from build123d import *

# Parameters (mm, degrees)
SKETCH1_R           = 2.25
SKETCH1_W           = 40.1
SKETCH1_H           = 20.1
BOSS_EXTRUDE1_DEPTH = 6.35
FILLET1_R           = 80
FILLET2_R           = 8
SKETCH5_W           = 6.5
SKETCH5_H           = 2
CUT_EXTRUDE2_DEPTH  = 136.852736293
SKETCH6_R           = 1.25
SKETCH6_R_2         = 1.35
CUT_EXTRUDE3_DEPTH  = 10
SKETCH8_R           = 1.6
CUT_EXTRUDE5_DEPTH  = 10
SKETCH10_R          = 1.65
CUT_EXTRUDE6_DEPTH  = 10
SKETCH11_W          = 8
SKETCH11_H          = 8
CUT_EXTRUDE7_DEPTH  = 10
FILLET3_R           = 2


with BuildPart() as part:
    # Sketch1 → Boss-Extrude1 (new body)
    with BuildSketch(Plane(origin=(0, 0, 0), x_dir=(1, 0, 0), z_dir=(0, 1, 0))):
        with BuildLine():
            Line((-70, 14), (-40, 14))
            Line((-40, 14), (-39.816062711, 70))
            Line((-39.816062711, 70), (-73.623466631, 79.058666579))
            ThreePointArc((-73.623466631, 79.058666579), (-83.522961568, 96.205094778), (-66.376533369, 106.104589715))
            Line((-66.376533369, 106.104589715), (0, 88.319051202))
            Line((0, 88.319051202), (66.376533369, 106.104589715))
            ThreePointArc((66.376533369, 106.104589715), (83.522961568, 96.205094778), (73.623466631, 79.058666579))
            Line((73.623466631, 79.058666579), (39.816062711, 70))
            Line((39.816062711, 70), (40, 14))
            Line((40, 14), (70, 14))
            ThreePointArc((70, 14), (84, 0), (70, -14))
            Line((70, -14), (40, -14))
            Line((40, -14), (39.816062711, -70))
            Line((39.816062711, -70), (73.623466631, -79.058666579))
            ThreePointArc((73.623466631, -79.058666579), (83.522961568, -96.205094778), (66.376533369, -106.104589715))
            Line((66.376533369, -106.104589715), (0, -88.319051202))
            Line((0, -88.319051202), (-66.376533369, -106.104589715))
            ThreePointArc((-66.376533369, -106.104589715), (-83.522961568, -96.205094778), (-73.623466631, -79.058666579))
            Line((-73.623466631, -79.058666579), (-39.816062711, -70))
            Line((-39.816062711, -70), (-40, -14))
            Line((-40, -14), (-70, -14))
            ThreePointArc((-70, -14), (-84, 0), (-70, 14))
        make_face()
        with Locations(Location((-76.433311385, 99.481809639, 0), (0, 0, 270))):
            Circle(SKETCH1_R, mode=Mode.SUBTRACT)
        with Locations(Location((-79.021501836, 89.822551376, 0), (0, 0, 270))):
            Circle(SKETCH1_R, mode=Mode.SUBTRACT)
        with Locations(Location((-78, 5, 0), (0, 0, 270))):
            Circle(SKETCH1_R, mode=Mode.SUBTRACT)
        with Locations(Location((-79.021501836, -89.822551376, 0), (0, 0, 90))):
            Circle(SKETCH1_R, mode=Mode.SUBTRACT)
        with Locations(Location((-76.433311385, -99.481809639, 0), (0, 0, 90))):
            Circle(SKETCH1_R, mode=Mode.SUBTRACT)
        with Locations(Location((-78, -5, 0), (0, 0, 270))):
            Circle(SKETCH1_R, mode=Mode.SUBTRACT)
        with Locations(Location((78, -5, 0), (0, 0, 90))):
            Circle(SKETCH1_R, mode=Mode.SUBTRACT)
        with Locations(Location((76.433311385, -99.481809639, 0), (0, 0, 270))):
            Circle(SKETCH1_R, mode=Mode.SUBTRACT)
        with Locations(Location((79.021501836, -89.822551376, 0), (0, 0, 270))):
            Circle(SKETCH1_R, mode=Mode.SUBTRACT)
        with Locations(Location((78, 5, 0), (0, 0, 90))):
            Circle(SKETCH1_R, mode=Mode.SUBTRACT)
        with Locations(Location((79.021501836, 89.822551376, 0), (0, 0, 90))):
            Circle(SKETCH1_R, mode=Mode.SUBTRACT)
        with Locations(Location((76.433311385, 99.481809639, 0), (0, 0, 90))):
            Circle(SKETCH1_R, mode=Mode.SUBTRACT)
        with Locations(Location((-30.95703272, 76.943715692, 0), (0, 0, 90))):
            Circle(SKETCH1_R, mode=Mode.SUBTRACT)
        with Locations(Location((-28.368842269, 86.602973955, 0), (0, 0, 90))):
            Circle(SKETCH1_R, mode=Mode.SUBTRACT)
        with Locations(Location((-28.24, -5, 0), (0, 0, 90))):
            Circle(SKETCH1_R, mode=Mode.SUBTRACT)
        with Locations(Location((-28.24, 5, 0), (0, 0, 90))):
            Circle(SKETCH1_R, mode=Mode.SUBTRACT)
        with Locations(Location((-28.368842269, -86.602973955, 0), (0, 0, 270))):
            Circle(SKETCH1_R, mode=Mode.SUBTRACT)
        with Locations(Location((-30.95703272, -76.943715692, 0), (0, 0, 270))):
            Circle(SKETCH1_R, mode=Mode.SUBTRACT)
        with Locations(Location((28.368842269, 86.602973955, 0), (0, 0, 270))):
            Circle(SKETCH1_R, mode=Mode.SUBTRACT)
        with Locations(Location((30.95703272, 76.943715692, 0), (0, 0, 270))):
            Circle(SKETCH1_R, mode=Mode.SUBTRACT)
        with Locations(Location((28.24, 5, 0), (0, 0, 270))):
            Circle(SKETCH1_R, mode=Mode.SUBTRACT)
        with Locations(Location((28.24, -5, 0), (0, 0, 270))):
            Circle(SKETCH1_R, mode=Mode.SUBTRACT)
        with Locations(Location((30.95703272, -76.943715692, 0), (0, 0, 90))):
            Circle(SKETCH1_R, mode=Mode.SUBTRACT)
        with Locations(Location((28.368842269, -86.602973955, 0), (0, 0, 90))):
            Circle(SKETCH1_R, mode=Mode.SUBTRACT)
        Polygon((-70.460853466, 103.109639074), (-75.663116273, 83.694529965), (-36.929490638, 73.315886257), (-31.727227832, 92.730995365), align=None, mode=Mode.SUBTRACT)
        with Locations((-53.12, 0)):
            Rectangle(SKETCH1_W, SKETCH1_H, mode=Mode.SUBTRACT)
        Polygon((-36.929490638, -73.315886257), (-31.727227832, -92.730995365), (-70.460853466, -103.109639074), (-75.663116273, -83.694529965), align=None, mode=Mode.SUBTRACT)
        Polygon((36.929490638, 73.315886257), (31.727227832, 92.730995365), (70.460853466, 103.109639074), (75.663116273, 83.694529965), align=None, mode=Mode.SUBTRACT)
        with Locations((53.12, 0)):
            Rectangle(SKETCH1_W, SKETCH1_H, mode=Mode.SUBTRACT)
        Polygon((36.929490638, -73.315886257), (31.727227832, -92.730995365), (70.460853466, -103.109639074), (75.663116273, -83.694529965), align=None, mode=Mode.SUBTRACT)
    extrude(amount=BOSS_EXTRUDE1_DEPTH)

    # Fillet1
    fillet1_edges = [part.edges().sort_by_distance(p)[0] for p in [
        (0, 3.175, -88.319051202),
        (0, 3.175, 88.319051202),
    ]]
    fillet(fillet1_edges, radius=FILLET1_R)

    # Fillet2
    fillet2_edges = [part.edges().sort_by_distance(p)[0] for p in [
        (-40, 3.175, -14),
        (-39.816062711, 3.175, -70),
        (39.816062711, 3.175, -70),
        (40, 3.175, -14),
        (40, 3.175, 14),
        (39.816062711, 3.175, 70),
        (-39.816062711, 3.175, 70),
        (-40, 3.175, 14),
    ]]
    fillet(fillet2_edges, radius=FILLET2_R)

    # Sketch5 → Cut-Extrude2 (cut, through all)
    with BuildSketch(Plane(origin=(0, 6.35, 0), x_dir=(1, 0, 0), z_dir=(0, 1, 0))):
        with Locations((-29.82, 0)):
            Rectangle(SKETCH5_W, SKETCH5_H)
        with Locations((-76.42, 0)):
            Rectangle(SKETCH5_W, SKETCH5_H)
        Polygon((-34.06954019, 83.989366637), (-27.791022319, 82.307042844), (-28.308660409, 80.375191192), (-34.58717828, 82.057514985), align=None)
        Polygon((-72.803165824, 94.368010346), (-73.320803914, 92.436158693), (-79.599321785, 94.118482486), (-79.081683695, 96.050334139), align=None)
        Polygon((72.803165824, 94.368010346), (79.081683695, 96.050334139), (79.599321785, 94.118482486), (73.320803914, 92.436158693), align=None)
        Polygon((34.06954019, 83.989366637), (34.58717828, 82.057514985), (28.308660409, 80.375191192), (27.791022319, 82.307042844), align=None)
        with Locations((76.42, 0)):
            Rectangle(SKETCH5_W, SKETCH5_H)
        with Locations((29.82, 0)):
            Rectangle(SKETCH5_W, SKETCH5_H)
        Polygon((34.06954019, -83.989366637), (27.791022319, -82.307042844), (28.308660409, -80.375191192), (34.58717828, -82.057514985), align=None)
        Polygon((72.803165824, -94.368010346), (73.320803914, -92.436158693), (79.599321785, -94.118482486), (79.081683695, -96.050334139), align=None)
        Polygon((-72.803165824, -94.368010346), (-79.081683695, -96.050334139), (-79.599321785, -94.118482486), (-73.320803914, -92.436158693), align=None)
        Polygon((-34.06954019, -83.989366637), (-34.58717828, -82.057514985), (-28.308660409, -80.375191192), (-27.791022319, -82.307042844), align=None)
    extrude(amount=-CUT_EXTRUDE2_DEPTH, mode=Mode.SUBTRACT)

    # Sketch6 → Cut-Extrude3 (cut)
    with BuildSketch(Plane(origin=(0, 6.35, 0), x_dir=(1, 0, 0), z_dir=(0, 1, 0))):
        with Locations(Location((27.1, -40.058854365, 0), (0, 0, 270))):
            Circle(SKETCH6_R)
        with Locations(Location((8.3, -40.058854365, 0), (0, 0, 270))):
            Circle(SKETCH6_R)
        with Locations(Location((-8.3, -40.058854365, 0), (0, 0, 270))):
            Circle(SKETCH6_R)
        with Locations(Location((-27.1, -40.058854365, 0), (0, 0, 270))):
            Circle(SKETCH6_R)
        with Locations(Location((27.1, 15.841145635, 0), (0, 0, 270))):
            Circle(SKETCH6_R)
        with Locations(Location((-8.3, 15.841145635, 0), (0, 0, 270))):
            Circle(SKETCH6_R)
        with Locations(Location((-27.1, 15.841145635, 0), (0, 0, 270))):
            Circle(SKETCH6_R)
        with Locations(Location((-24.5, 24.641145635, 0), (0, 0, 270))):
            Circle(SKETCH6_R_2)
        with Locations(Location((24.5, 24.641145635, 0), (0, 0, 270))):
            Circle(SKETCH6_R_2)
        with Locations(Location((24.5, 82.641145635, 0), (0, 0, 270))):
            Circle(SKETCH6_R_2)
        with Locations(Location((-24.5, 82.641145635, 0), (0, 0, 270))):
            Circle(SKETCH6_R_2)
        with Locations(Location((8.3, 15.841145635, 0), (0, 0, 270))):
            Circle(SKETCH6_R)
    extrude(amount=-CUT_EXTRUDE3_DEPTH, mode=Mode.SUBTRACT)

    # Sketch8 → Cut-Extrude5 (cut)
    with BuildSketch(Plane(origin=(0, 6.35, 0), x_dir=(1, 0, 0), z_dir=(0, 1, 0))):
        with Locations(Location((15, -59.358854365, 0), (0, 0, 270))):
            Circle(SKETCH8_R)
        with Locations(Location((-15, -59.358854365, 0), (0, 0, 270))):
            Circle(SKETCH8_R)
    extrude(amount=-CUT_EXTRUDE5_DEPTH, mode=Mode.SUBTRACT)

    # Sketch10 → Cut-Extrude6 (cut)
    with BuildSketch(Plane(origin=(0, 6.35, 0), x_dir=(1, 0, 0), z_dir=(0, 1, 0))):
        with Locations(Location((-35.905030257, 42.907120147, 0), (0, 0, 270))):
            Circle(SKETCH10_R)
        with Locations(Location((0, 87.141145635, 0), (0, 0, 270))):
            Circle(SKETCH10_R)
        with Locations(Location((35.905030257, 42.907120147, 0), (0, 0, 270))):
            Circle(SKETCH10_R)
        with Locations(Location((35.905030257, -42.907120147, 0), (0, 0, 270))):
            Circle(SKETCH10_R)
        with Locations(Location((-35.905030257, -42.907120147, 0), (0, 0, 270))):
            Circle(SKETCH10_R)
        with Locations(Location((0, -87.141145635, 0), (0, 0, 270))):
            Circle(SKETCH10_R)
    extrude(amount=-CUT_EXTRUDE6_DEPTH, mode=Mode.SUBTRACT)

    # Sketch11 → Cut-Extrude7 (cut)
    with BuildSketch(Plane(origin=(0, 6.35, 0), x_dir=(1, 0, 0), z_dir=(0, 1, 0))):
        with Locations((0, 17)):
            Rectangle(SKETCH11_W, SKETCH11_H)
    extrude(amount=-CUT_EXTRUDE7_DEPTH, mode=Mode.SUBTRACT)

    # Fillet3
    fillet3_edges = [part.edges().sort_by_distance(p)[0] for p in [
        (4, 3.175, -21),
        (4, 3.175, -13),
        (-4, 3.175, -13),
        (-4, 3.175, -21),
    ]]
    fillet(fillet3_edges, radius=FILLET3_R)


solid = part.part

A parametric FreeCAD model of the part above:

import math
import FreeCAD as App
import Part
import Sketcher
Q = App.Units.Quantity


def edges_at(feature, points):
    """Names of the edges that pass closest to the given points."""
    edges = feature.Shape.Edges
    near = lambda p: min(range(len(edges)), key=lambda i: edges[i].distToShape(Part.Vertex(*p))[0])
    return sorted({f"Edge{near(p) + 1}" for p in points})

doc = App.newDocument("Part")
body = doc.addObject("PartDesign::Body", "Body")

# Sketch on XZ plane
sketch1 = body.newObject("Sketcher::SketchObject", "Sketch")
sketch1.AttachmentSupport = (doc.getObject("XZ_Plane"), [""])
sketch1.MapMode = "FlatFace"
sketch1.addGeometry([
    Part.LineSegment(App.Vector(-40, -14, 0), App.Vector(-70, -14, 0)),  # 0
    Part.ArcOfCircle(Part.Circle(App.Vector(-70, 0, 0), App.Vector(0, 0, 1), 14), math.radians(90), math.radians(270)),  # 1
    Part.LineSegment(App.Vector(-70, 14, 0), App.Vector(-40, 14, 0)),  # 2
    Part.LineSegment(App.Vector(-40, 14, 0), App.Vector(-39.8, 70, 0)),  # 3
    Part.LineSegment(App.Vector(-39.8, 70, 0), App.Vector(-73.6, 79.1, 0)),  # 4
    Part.ArcOfCircle(Part.Circle(App.Vector(-70, 92.6, 0), App.Vector(0, 0, 1), 14), math.radians(75), math.radians(255)),  # 5
    Part.LineSegment(App.Vector(-66.4, 106.1, 0), App.Vector(0, 88.3, 0)),  # 6
    Part.LineSegment(App.Vector(0, 88.3, 0), App.Vector(66.4, 106.1, 0)),  # 7
    Part.ArcOfCircle(Part.Circle(App.Vector(70, 92.6, 0), App.Vector(0, 0, 1), 14), math.radians(-75), math.radians(105)),  # 8
    Part.LineSegment(App.Vector(73.6, 79.1, 0), App.Vector(39.8, 70, 0)),  # 9
    Part.LineSegment(App.Vector(39.8, 70, 0), App.Vector(40, 14, 0)),  # 10
    Part.LineSegment(App.Vector(40, 14, 0), App.Vector(70, 14, 0)),  # 11
    Part.ArcOfCircle(Part.Circle(App.Vector(70, 0, 0), App.Vector(0, 0, 1), 14), math.radians(-90), math.radians(90)),  # 12
    Part.LineSegment(App.Vector(70, -14, 0), App.Vector(40, -14, 0)),  # 13
    Part.LineSegment(App.Vector(40, -14, 0), App.Vector(39.8, -70, 0)),  # 14
    Part.LineSegment(App.Vector(39.8, -70, 0), App.Vector(73.6, -79.1, 0)),  # 15
    Part.ArcOfCircle(Part.Circle(App.Vector(70, -92.6, 0), App.Vector(0, 0, 1), 14), math.radians(-105), math.radians(75)),  # 16
    Part.LineSegment(App.Vector(66.4, -106.1, 0), App.Vector(0, -88.3, 0)),  # 17
    Part.LineSegment(App.Vector(0, -88.3, 0), App.Vector(-66.4, -106.1, 0)),  # 18
    Part.ArcOfCircle(Part.Circle(App.Vector(-70, -92.6, 0), App.Vector(0, 0, 1), 14), math.radians(105), math.radians(285)),  # 19
    Part.LineSegment(App.Vector(-73.6, -79.1, 0), App.Vector(-39.8, -70, 0)),  # 20
    Part.LineSegment(App.Vector(-39.8, -70, 0), App.Vector(-40, -14, 0)),  # 21
    Part.Circle(App.Vector(76.4, 99.5, 0), App.Vector(0, 0, 1), 2.2),  # 22
    Part.Circle(App.Vector(79, 89.8, 0), App.Vector(0, 0, 1), 2.2),  # 23
    Part.LineSegment(App.Vector(36.9, 73.3, 0), App.Vector(75.7, 83.7, 0)),  # 24
    Part.LineSegment(App.Vector(75.7, 83.7, 0), App.Vector(70.5, 103.1, 0)),  # 25
    Part.LineSegment(App.Vector(70.5, 103.1, 0), App.Vector(31.7, 92.7, 0)),  # 26
    Part.LineSegment(App.Vector(31.7, 92.7, 0), App.Vector(36.9, 73.3, 0)),  # 27
    Part.Circle(App.Vector(28.4, 86.6, 0), App.Vector(0, 0, 1), 2.2),  # 28
    Part.Circle(App.Vector(31, 76.9, 0), App.Vector(0, 0, 1), 2.2),  # 29
    Part.Circle(App.Vector(78, 5, 0), App.Vector(0, 0, 1), 2.2),  # 30
    Part.Circle(App.Vector(28.2, 5, 0), App.Vector(0, 0, 1), 2.2),  # 31
    Part.Circle(App.Vector(-28.4, 86.6, 0), App.Vector(0, 0, 1), 2.2),  # 32
    Part.Circle(App.Vector(-31, 76.9, 0), App.Vector(0, 0, 1), 2.2),  # 33
    Part.LineSegment(App.Vector(-36.9, 73.3, 0), App.Vector(-31.7, 92.7, 0)),  # 34
    Part.LineSegment(App.Vector(-31.7, 92.7, 0), App.Vector(-70.5, 103.1, 0)),  # 35
    Part.LineSegment(App.Vector(-70.5, 103.1, 0), App.Vector(-75.7, 83.7, 0)),  # 36
    Part.LineSegment(App.Vector(-75.7, 83.7, 0), App.Vector(-36.9, 73.3, 0)),  # 37
    Part.Circle(App.Vector(-76.4, 99.5, 0), App.Vector(0, 0, 1), 2.2),  # 38
    Part.Circle(App.Vector(-79, 89.8, 0), App.Vector(0, 0, 1), 2.2),  # 39
    Part.Circle(App.Vector(-28.2, 5, 0), App.Vector(0, 0, 1), 2.2),  # 40
    Part.Circle(App.Vector(-78, 5, 0), App.Vector(0, 0, 1), 2.2),  # 41
    Part.Circle(App.Vector(78, -5, 0), App.Vector(0, 0, 1), 2.2),  # 42
    Part.LineSegment(App.Vector(33.1, 10.1, 0), App.Vector(33.1, -10.1, 0)),  # 43
    Part.LineSegment(App.Vector(33.1, -10.1, 0), App.Vector(73.2, -10.1, 0)),  # 44
    Part.LineSegment(App.Vector(73.2, -10.1, 0), App.Vector(73.2, 10.1, 0)),  # 45
    Part.LineSegment(App.Vector(73.2, 10.1, 0), App.Vector(33.1, 10.1, 0)),  # 46
    Part.Circle(App.Vector(28.2, -5, 0), App.Vector(0, 0, 1), 2.2),  # 47
    Part.Circle(App.Vector(79, -89.8, 0), App.Vector(0, 0, 1), 2.2),  # 48
    Part.Circle(App.Vector(76.4, -99.5, 0), App.Vector(0, 0, 1), 2.2),  # 49
    Part.LineSegment(App.Vector(36.9, -73.3, 0), App.Vector(31.7, -92.7, 0)),  # 50
    Part.LineSegment(App.Vector(31.7, -92.7, 0), App.Vector(70.5, -103.1, 0)),  # 51
    Part.LineSegment(App.Vector(70.5, -103.1, 0), App.Vector(75.7, -83.7, 0)),  # 52
    Part.LineSegment(App.Vector(75.7, -83.7, 0), App.Vector(36.9, -73.3, 0)),  # 53
    Part.Circle(App.Vector(31, -76.9, 0), App.Vector(0, 0, 1), 2.2),  # 54
    Part.Circle(App.Vector(28.4, -86.6, 0), App.Vector(0, 0, 1), 2.2),  # 55
    Part.Circle(App.Vector(-28.2, -5, 0), App.Vector(0, 0, 1), 2.2),  # 56
    Part.LineSegment(App.Vector(-73.2, 10.1, 0), App.Vector(-73.2, -10.1, 0)),  # 57
    Part.LineSegment(App.Vector(-73.2, -10.1, 0), App.Vector(-33.1, -10.1, 0)),  # 58
    Part.LineSegment(App.Vector(-33.1, -10.1, 0), App.Vector(-33.1, 10.1, 0)),  # 59
    Part.LineSegment(App.Vector(-33.1, 10.1, 0), App.Vector(-73.2, 10.1, 0)),  # 60
    Part.Circle(App.Vector(-78, -5, 0), App.Vector(0, 0, 1), 2.2),  # 61
    Part.Circle(App.Vector(-31, -76.9, 0), App.Vector(0, 0, 1), 2.2),  # 62
    Part.Circle(App.Vector(-28.4, -86.6, 0), App.Vector(0, 0, 1), 2.2),  # 63
    Part.LineSegment(App.Vector(-70.5, -103.1, 0), App.Vector(-31.7, -92.7, 0)),  # 64
    Part.LineSegment(App.Vector(-31.7, -92.7, 0), App.Vector(-36.9, -73.3, 0)),  # 65
    Part.LineSegment(App.Vector(-36.9, -73.3, 0), App.Vector(-75.7, -83.7, 0)),  # 66
    Part.LineSegment(App.Vector(-75.7, -83.7, 0), App.Vector(-70.5, -103.1, 0)),  # 67
    Part.Circle(App.Vector(-79, -89.8, 0), App.Vector(0, 0, 1), 2.2),  # 68
    Part.Circle(App.Vector(-76.4, -99.5, 0), App.Vector(0, 0, 1), 2.2),  # 69
], False)
sketch1.addConstraint([
    Sketcher.Constraint("Tangent", 0, 2, 1, 2),
    Sketcher.Constraint("Tangent", 1, 1, 2, 1),
    Sketcher.Constraint("Coincident", 2, 2, 3, 1),
    Sketcher.Constraint("Coincident", 3, 2, 4, 1),
    Sketcher.Constraint("Tangent", 4, 2, 5, 2),
    Sketcher.Constraint("Tangent", 5, 1, 6, 1),
    Sketcher.Constraint("Coincident", 6, 2, 7, 1),
    Sketcher.Constraint("Tangent", 7, 2, 8, 2),
    Sketcher.Constraint("Tangent", 8, 1, 9, 1),
    Sketcher.Constraint("Coincident", 9, 2, 10, 1),
    Sketcher.Constraint("Coincident", 10, 2, 11, 1),
    Sketcher.Constraint("Tangent", 11, 2, 12, 2),
    Sketcher.Constraint("Tangent", 12, 1, 13, 1),
    Sketcher.Constraint("Coincident", 13, 2, 14, 1),
    Sketcher.Constraint("Coincident", 14, 2, 15, 1),
    Sketcher.Constraint("Tangent", 15, 2, 16, 2),
    Sketcher.Constraint("Tangent", 16, 1, 17, 1),
    Sketcher.Constraint("Coincident", 17, 2, 18, 1),
    Sketcher.Constraint("Tangent", 18, 2, 19, 2),
    Sketcher.Constraint("Tangent", 19, 1, 20, 1),
    Sketcher.Constraint("Coincident", 20, 2, 21, 1),
    Sketcher.Constraint("Coincident", 21, 2, 0, 1),
    Sketcher.Constraint("Coincident", 24, 2, 25, 1),
    Sketcher.Constraint("Coincident", 25, 2, 26, 1),
    Sketcher.Constraint("Coincident", 26, 2, 27, 1),
    Sketcher.Constraint("Coincident", 27, 2, 24, 1),
    Sketcher.Constraint("Coincident", 34, 2, 35, 1),
    Sketcher.Constraint("Coincident", 35, 2, 36, 1),
    Sketcher.Constraint("Coincident", 36, 2, 37, 1),
    Sketcher.Constraint("Coincident", 37, 2, 34, 1),
    Sketcher.Constraint("Coincident", 43, 2, 44, 1),
    Sketcher.Constraint("Coincident", 44, 2, 45, 1),
    Sketcher.Constraint("Coincident", 45, 2, 46, 1),
    Sketcher.Constraint("Coincident", 46, 2, 43, 1),
    Sketcher.Constraint("Coincident", 50, 2, 51, 1),
    Sketcher.Constraint("Coincident", 51, 2, 52, 1),
    Sketcher.Constraint("Coincident", 52, 2, 53, 1),
    Sketcher.Constraint("Coincident", 53, 2, 50, 1),
    Sketcher.Constraint("Coincident", 57, 2, 58, 1),
    Sketcher.Constraint("Coincident", 58, 2, 59, 1),
    Sketcher.Constraint("Coincident", 59, 2, 60, 1),
    Sketcher.Constraint("Coincident", 60, 2, 57, 1),
    Sketcher.Constraint("Coincident", 64, 2, 65, 1),
    Sketcher.Constraint("Coincident", 65, 2, 66, 1),
    Sketcher.Constraint("Coincident", 66, 2, 67, 1),
    Sketcher.Constraint("Coincident", 67, 2, 64, 1),
    Sketcher.Constraint("Horizontal", 0),
    Sketcher.Constraint("Horizontal", 2),
    Sketcher.Constraint("Horizontal", 11),
    Sketcher.Constraint("Horizontal", 13),
    Sketcher.Constraint("Vertical", 43),
    Sketcher.Constraint("Horizontal", 44),
    Sketcher.Constraint("Vertical", 45),
    Sketcher.Constraint("Horizontal", 46),
    Sketcher.Constraint("Vertical", 57),
    Sketcher.Constraint("Horizontal", 58),
    Sketcher.Constraint("Vertical", 59),
    Sketcher.Constraint("Horizontal", 60),
    Sketcher.Constraint("Equal", 1, 5),
    Sketcher.Constraint("Equal", 5, 8),
    Sketcher.Constraint("Equal", 8, 12),
    Sketcher.Constraint("Equal", 12, 16),
    Sketcher.Constraint("Equal", 16, 19),
    Sketcher.Constraint("Equal", 22, 23),
    Sketcher.Constraint("Equal", 23, 28),
    Sketcher.Constraint("Equal", 28, 29),
    Sketcher.Constraint("Equal", 29, 30),
    Sketcher.Constraint("Equal", 30, 31),
    Sketcher.Constraint("Equal", 31, 32),
    Sketcher.Constraint("Equal", 32, 33),
    Sketcher.Constraint("Equal", 33, 38),
    Sketcher.Constraint("Equal", 38, 39),
    Sketcher.Constraint("Equal", 39, 40),
    Sketcher.Constraint("Equal", 40, 41),
    Sketcher.Constraint("Equal", 41, 42),
    Sketcher.Constraint("Equal", 42, 47),
    Sketcher.Constraint("Equal", 47, 48),
    Sketcher.Constraint("Equal", 48, 49),
    Sketcher.Constraint("Equal", 49, 54),
    Sketcher.Constraint("Equal", 54, 55),
    Sketcher.Constraint("Equal", 55, 56),
    Sketcher.Constraint("Equal", 56, 61),
    Sketcher.Constraint("Equal", 61, 62),
    Sketcher.Constraint("Equal", 62, 63),
    Sketcher.Constraint("Equal", 63, 68),
    Sketcher.Constraint("Equal", 68, 69),
    Sketcher.Constraint("Symmetric", 1, 3, 12, 3, -1, 1),
    Sketcher.Constraint("Symmetric", 5, 3, 16, 3, -1, 1),
    Sketcher.Constraint("Symmetric", 8, 3, 19, 3, -1, 1),
    Sketcher.Constraint("Symmetric", 41, 3, 42, 3, -1, 1),
    Sketcher.Constraint("Symmetric", 40, 3, 47, 3, -1, 1),
    Sketcher.Constraint("Symmetric", 39, 3, 48, 3, -1, 1),
    Sketcher.Constraint("Symmetric", 38, 3, 49, 3, -1, 1),
    Sketcher.Constraint("Symmetric", 33, 3, 54, 3, -1, 1),
    Sketcher.Constraint("Symmetric", 32, 3, 55, 3, -1, 1),
    Sketcher.Constraint("Symmetric", 31, 3, 56, 3, -1, 1),
    Sketcher.Constraint("Symmetric", 30, 3, 61, 3, -1, 1),
    Sketcher.Constraint("Symmetric", 29, 3, 62, 3, -1, 1),
    Sketcher.Constraint("Symmetric", 28, 3, 63, 3, -1, 1),
    Sketcher.Constraint("Symmetric", 23, 3, 68, 3, -1, 1),
    Sketcher.Constraint("Symmetric", 22, 3, 69, 3, -1, 1),
    Sketcher.Constraint("Symmetric", 3, 2, 14, 2, -1, 1),
    Sketcher.Constraint("Symmetric", 6, 2, 17, 2, -1, 1),
    Sketcher.Constraint("Symmetric", 9, 2, 20, 2, -1, 1),
    Sketcher.Constraint("Symmetric", 34, 2, 50, 2, -1, 1),
    Sketcher.Constraint("Symmetric", 35, 2, 51, 2, -1, 1),
    Sketcher.Constraint("Symmetric", 36, 2, 52, 2, -1, 1),
    Sketcher.Constraint("Symmetric", 37, 2, 53, 2, -1, 1),
    Sketcher.Constraint("Symmetric", 45, 2, 57, 2, -1, 1),
    Sketcher.Constraint("Symmetric", 43, 2, 59, 2, -1, 1),
    Sketcher.Constraint("Symmetric", 26, 2, 64, 2, -1, 1),
    Sketcher.Constraint("Symmetric", 27, 2, 65, 2, -1, 1),
    Sketcher.Constraint("Symmetric", 24, 2, 66, 2, -1, 1),
    Sketcher.Constraint("Symmetric", 25, 2, 67, 2, -1, 1),
    Sketcher.Constraint("Symmetric", 5, 3, 8, 3, -2),
    Sketcher.Constraint("Symmetric", 28, 3, 32, 3, -2),
    Sketcher.Constraint("Symmetric", 29, 3, 33, 3, -2),
    Sketcher.Constraint("Symmetric", 22, 3, 38, 3, -2),
    Sketcher.Constraint("Symmetric", 23, 3, 39, 3, -2),
    Sketcher.Constraint("Symmetric", 31, 3, 40, 3, -2),
    Sketcher.Constraint("Symmetric", 30, 3, 41, 3, -2),
    Sketcher.Constraint("Symmetric", 3, 2, 9, 2, -2),
    Sketcher.Constraint("Symmetric", 2, 2, 10, 2, -2),
    Sketcher.Constraint("Symmetric", 26, 2, 34, 2, -2),
    Sketcher.Constraint("Symmetric", 25, 2, 35, 2, -2),
    Sketcher.Constraint("Symmetric", 24, 2, 36, 2, -2),
    Sketcher.Constraint("Symmetric", 27, 2, 37, 2, -2),
    Sketcher.Constraint("PointOnObject", 6, 2, -2),
    Sketcher.Constraint("Parallel", 4, 6),
    Sketcher.Constraint("Parallel", 3, 14),
    Sketcher.Constraint("Parallel", 10, 21),
    Sketcher.Constraint("Parallel", 20, 24),
    Sketcher.Constraint("Perpendicular", 24, 25),
    Sketcher.Constraint("Perpendicular", 25, 26),
    Sketcher.Constraint("Perpendicular", 26, 27),
    Sketcher.Constraint("Horizontal", 30, 3, 31, 3),
    Sketcher.Constraint("Horizontal", 44, 2, 57, 2),
    Sketcher.Constraint("Vertical", 1, 3, 5, 3),
    Sketcher.Constraint("Radius", 1, 14.0),
    Sketcher.Constraint("Diameter", 22, 4.5),
    Sketcher.Constraint("DistanceX", 0, 2, 0, 1, 30.0),
    Sketcher.Constraint("Angle", 4, Q("165 deg")),
    Sketcher.Constraint("Distance", 4, 35.0),
    Sketcher.Constraint("DistanceX", 44, 1, 44, 2, 40.1),
    Sketcher.Constraint("DistanceY", 43, 2, 43, 1, 20.1),
    Sketcher.Constraint("DistanceX", 1, 3, -1, 1, 70.0),
    Sketcher.Constraint("DistanceX", -1, 1, 30, 3, 78.0),
    Sketcher.Constraint("DistanceY", -1, 1, 30, 3, 5.0),
    Sketcher.Constraint("DistanceY", -1, 1, 3, 2, 70.0),
    Sketcher.Constraint("Distance", 24, 40.1),
    Sketcher.Constraint("Distance", 25, 20.1),
    Sketcher.Constraint("DistanceX", -1, 1, 31, 3, 28.24),
    Sketcher.Constraint("DistanceX", -1, 1, 43, 2, 33.07),
    Sketcher.Constraint("DistanceX", -1, 1, 23, 3, 79.021502),
    Sketcher.Constraint("DistanceX", -1, 1, 22, 3, 76.433311),
    Sketcher.Constraint("DistanceY", -1, 1, 22, 3, 99.48181),
    Sketcher.Constraint("DistanceY", -1, 1, 23, 3, 89.822551),
    Sketcher.Constraint("DistanceY", -1, 1, 24, 2, 83.69453),
    Sketcher.Constraint("DistanceX", -1, 1, 27, 2, 36.929491),
    Sketcher.Constraint("DistanceX", -1, 1, 28, 3, 28.368842),
    Sketcher.Constraint("DistanceY", -1, 1, 28, 3, 86.602974),
    Sketcher.Constraint("DistanceX", -1, 1, 29, 3, 30.957033),
    Sketcher.Constraint("DistanceY", -1, 1, 29, 3, 76.943716),
])
pad1 = body.newObject("PartDesign::Pad", "Pad")
pad1.Profile = sketch1
pad1.Length = 6.35
pad1.Reversed = True
doc.recompute()

fillet = body.newObject("PartDesign::Fillet", "Fillet")
fillet.Base = (pad1, edges_at(pad1, [(0, 3.175, -88.319), (0, 3.175, 88.319)]))
fillet.Radius = 80
doc.recompute()

fillet2 = body.newObject("PartDesign::Fillet", "Fillet001")
fillet2.Base = (fillet, edges_at(fillet, [
    (-40, 3.175, -14),
    (-39.816, 3.175, -70),
    (39.816, 3.175, -70),
    (40, 3.175, -14),
    (40, 3.175, 14),
    (39.816, 3.175, 70),
    (-39.816, 3.175, 70),
    (-40, 3.175, 14),
]))
fillet2.Radius = 8

# Sketch on XZ plane
sketch2 = body.newObject("Sketcher::SketchObject", "Sketch001")
sketch2.AttachmentSupport = (doc.getObject("XZ_Plane"), [""])
sketch2.MapMode = "FlatFace"
sketch2.AttachmentOffset = App.Placement(App.Vector(0, 0, -6.35), App.Rotation())
sketch2.addGeometry([
    Part.LineSegment(App.Vector(-33.1, -1, 0), App.Vector(-33.1, 1, 0)),  # 0
    Part.LineSegment(App.Vector(-33.1, 1, 0), App.Vector(-26.6, 1, 0)),  # 1
    Part.LineSegment(App.Vector(-26.6, 1, 0), App.Vector(-26.6, -1, 0)),  # 2
    Part.LineSegment(App.Vector(-26.6, -1, 0), App.Vector(-33.1, -1, 0)),  # 3
    Part.LineSegment(App.Vector(-79.7, -1, 0), App.Vector(-79.7, 1, 0)),  # 4
    Part.LineSegment(App.Vector(-79.7, 1, 0), App.Vector(-73.2, 1, 0)),  # 5
    Part.LineSegment(App.Vector(-73.2, 1, 0), App.Vector(-73.2, -1, 0)),  # 6
    Part.LineSegment(App.Vector(-73.2, -1, 0), App.Vector(-79.7, -1, 0)),  # 7
    Part.LineSegment(App.Vector(-27.8, -82.3, 0), App.Vector(-34.1, -84, 0)),  # 8
    Part.LineSegment(App.Vector(-34.1, -84, 0), App.Vector(-34.6, -82.1, 0)),  # 9
    Part.LineSegment(App.Vector(-34.6, -82.1, 0), App.Vector(-28.3, -80.4, 0)),  # 10
    Part.LineSegment(App.Vector(-28.3, -80.4, 0), App.Vector(-27.8, -82.3, 0)),  # 11
    Part.LineSegment(App.Vector(-73.3, -92.4, 0), App.Vector(-72.8, -94.4, 0)),  # 12
    Part.LineSegment(App.Vector(-72.8, -94.4, 0), App.Vector(-79.1, -96.1, 0)),  # 13
    Part.LineSegment(App.Vector(-79.1, -96.1, 0), App.Vector(-79.6, -94.1, 0)),  # 14
    Part.LineSegment(App.Vector(-79.6, -94.1, 0), App.Vector(-73.3, -92.4, 0)),  # 15
    Part.LineSegment(App.Vector(79.1, -96.1, 0), App.Vector(72.8, -94.4, 0)),  # 16
    Part.LineSegment(App.Vector(72.8, -94.4, 0), App.Vector(73.3, -92.4, 0)),  # 17
    Part.LineSegment(App.Vector(73.3, -92.4, 0), App.Vector(79.6, -94.1, 0)),  # 18
    Part.LineSegment(App.Vector(79.6, -94.1, 0), App.Vector(79.1, -96.1, 0)),  # 19
    Part.LineSegment(App.Vector(34.6, -82.1, 0), App.Vector(34.1, -84, 0)),  # 20
    Part.LineSegment(App.Vector(34.1, -84, 0), App.Vector(27.8, -82.3, 0)),  # 21
    Part.LineSegment(App.Vector(27.8, -82.3, 0), App.Vector(28.3, -80.4, 0)),  # 22
    Part.LineSegment(App.Vector(28.3, -80.4, 0), App.Vector(34.6, -82.1, 0)),  # 23
    Part.LineSegment(App.Vector(73.2, -1, 0), App.Vector(73.2, 1, 0)),  # 24
    Part.LineSegment(App.Vector(73.2, 1, 0), App.Vector(79.7, 1, 0)),  # 25
    Part.LineSegment(App.Vector(79.7, 1, 0), App.Vector(79.7, -1, 0)),  # 26
    Part.LineSegment(App.Vector(79.7, -1, 0), App.Vector(73.2, -1, 0)),  # 27
    Part.LineSegment(App.Vector(26.6, -1, 0), App.Vector(26.6, 1, 0)),  # 28
    Part.LineSegment(App.Vector(26.6, 1, 0), App.Vector(33.1, 1, 0)),  # 29
    Part.LineSegment(App.Vector(33.1, 1, 0), App.Vector(33.1, -1, 0)),  # 30
    Part.LineSegment(App.Vector(33.1, -1, 0), App.Vector(26.6, -1, 0)),  # 31
    Part.LineSegment(App.Vector(27.8, 82.3, 0), App.Vector(34.1, 84, 0)),  # 32
    Part.LineSegment(App.Vector(34.1, 84, 0), App.Vector(34.6, 82.1, 0)),  # 33
    Part.LineSegment(App.Vector(34.6, 82.1, 0), App.Vector(28.3, 80.4, 0)),  # 34
    Part.LineSegment(App.Vector(28.3, 80.4, 0), App.Vector(27.8, 82.3, 0)),  # 35
    Part.LineSegment(App.Vector(73.3, 92.4, 0), App.Vector(72.8, 94.4, 0)),  # 36
    Part.LineSegment(App.Vector(72.8, 94.4, 0), App.Vector(79.1, 96.1, 0)),  # 37
    Part.LineSegment(App.Vector(79.1, 96.1, 0), App.Vector(79.6, 94.1, 0)),  # 38
    Part.LineSegment(App.Vector(79.6, 94.1, 0), App.Vector(73.3, 92.4, 0)),  # 39
    Part.LineSegment(App.Vector(-79.1, 96.1, 0), App.Vector(-72.8, 94.4, 0)),  # 40
    Part.LineSegment(App.Vector(-72.8, 94.4, 0), App.Vector(-73.3, 92.4, 0)),  # 41
    Part.LineSegment(App.Vector(-73.3, 92.4, 0), App.Vector(-79.6, 94.1, 0)),  # 42
    Part.LineSegment(App.Vector(-79.6, 94.1, 0), App.Vector(-79.1, 96.1, 0)),  # 43
    Part.LineSegment(App.Vector(-34.6, 82.1, 0), App.Vector(-34.1, 84, 0)),  # 44
    Part.LineSegment(App.Vector(-34.1, 84, 0), App.Vector(-27.8, 82.3, 0)),  # 45
    Part.LineSegment(App.Vector(-27.8, 82.3, 0), App.Vector(-28.3, 80.4, 0)),  # 46
    Part.LineSegment(App.Vector(-28.3, 80.4, 0), App.Vector(-34.6, 82.1, 0)),  # 47
], False)
sketch2.addConstraint([
    Sketcher.Constraint("Coincident", 0, 2, 1, 1),
    Sketcher.Constraint("Coincident", 1, 2, 2, 1),
    Sketcher.Constraint("Coincident", 2, 2, 3, 1),
    Sketcher.Constraint("Coincident", 3, 2, 0, 1),
    Sketcher.Constraint("Coincident", 4, 2, 5, 1),
    Sketcher.Constraint("Coincident", 5, 2, 6, 1),
    Sketcher.Constraint("Coincident", 6, 2, 7, 1),
    Sketcher.Constraint("Coincident", 7, 2, 4, 1),
    Sketcher.Constraint("Coincident", 8, 2, 9, 1),
    Sketcher.Constraint("Coincident", 9, 2, 10, 1),
    Sketcher.Constraint("Coincident", 10, 2, 11, 1),
    Sketcher.Constraint("Coincident", 11, 2, 8, 1),
    Sketcher.Constraint("Coincident", 12, 2, 13, 1),
    Sketcher.Constraint("Coincident", 13, 2, 14, 1),
    Sketcher.Constraint("Coincident", 14, 2, 15, 1),
    Sketcher.Constraint("Coincident", 15, 2, 12, 1),
    Sketcher.Constraint("Coincident", 16, 2, 17, 1),
    Sketcher.Constraint("Coincident", 17, 2, 18, 1),
    Sketcher.Constraint("Coincident", 18, 2, 19, 1),
    Sketcher.Constraint("Coincident", 19, 2, 16, 1),
    Sketcher.Constraint("Coincident", 20, 2, 21, 1),
    Sketcher.Constraint("Coincident", 21, 2, 22, 1),
    Sketcher.Constraint("Coincident", 22, 2, 23, 1),
    Sketcher.Constraint("Coincident", 23, 2, 20, 1),
    Sketcher.Constraint("Coincident", 24, 2, 25, 1),
    Sketcher.Constraint("Coincident", 25, 2, 26, 1),
    Sketcher.Constraint("Coincident", 26, 2, 27, 1),
    Sketcher.Constraint("Coincident", 27, 2, 24, 1),
    Sketcher.Constraint("Coincident", 28, 2, 29, 1),
    Sketcher.Constraint("Coincident", 29, 2, 30, 1),
    Sketcher.Constraint("Coincident", 30, 2, 31, 1),
    Sketcher.Constraint("Coincident", 31, 2, 28, 1),
    Sketcher.Constraint("Coincident", 32, 2, 33, 1),
    Sketcher.Constraint("Coincident", 33, 2, 34, 1),
    Sketcher.Constraint("Coincident", 34, 2, 35, 1),
    Sketcher.Constraint("Coincident", 35, 2, 32, 1),
    Sketcher.Constraint("Coincident", 36, 2, 37, 1),
    Sketcher.Constraint("Coincident", 37, 2, 38, 1),
    Sketcher.Constraint("Coincident", 38, 2, 39, 1),
    Sketcher.Constraint("Coincident", 39, 2, 36, 1),
    Sketcher.Constraint("Coincident", 40, 2, 41, 1),
    Sketcher.Constraint("Coincident", 41, 2, 42, 1),
    Sketcher.Constraint("Coincident", 42, 2, 43, 1),
    Sketcher.Constraint("Coincident", 43, 2, 40, 1),
    Sketcher.Constraint("Coincident", 44, 2, 45, 1),
    Sketcher.Constraint("Coincident", 45, 2, 46, 1),
    Sketcher.Constraint("Coincident", 46, 2, 47, 1),
    Sketcher.Constraint("Coincident", 47, 2, 44, 1),
    Sketcher.Constraint("Vertical", 0),
    Sketcher.Constraint("Horizontal", 1),
    Sketcher.Constraint("Vertical", 2),
    Sketcher.Constraint("Horizontal", 3),
    Sketcher.Constraint("Vertical", 4),
    Sketcher.Constraint("Horizontal", 5),
    Sketcher.Constraint("Vertical", 6),
    Sketcher.Constraint("Horizontal", 7),
    Sketcher.Constraint("Vertical", 24),
    Sketcher.Constraint("Horizontal", 25),
    Sketcher.Constraint("Vertical", 26),
    Sketcher.Constraint("Horizontal", 27),
    Sketcher.Constraint("Vertical", 28),
    Sketcher.Constraint("Horizontal", 29),
    Sketcher.Constraint("Vertical", 30),
    Sketcher.Constraint("Horizontal", 31),
    Sketcher.Constraint("Symmetric", 6, 2, 24, 2, -1, 1),
    Sketcher.Constraint("Symmetric", 4, 2, 26, 2, -1, 1),
    Sketcher.Constraint("Symmetric", 2, 2, 28, 2, -1, 1),
    Sketcher.Constraint("Symmetric", 0, 2, 30, 2, -1, 1),
    Sketcher.Constraint("Symmetric", 8, 2, 32, 2, -1, 1),
    Sketcher.Constraint("Symmetric", 9, 2, 33, 2, -1, 1),
    Sketcher.Constraint("Symmetric", 10, 2, 34, 2, -1, 1),
    Sketcher.Constraint("Symmetric", 11, 2, 35, 2, -1, 1),
    Sketcher.Constraint("Symmetric", 12, 2, 36, 2, -1, 1),
    Sketcher.Constraint("Symmetric", 13, 2, 37, 2, -1, 1),
    Sketcher.Constraint("Symmetric", 14, 2, 38, 2, -1, 1),
    Sketcher.Constraint("Symmetric", 15, 2, 39, 2, -1, 1),
    Sketcher.Constraint("Symmetric", 16, 2, 40, 2, -1, 1),
    Sketcher.Constraint("Symmetric", 17, 2, 41, 2, -1, 1),
    Sketcher.Constraint("Symmetric", 18, 2, 42, 2, -1, 1),
    Sketcher.Constraint("Symmetric", 19, 2, 43, 2, -1, 1),
    Sketcher.Constraint("Symmetric", 20, 2, 44, 2, -1, 1),
    Sketcher.Constraint("Symmetric", 21, 2, 45, 2, -1, 1),
    Sketcher.Constraint("Symmetric", 22, 2, 46, 2, -1, 1),
    Sketcher.Constraint("Symmetric", 23, 2, 47, 2, -1, 1),
    Sketcher.Constraint("Symmetric", 12, 2, 16, 2, -2),
    Sketcher.Constraint("Symmetric", 15, 2, 17, 2, -2),
    Sketcher.Constraint("Symmetric", 14, 2, 18, 2, -2),
    Sketcher.Constraint("Symmetric", 13, 2, 19, 2, -2),
    Sketcher.Constraint("Symmetric", 8, 2, 20, 2, -2),
    Sketcher.Constraint("Symmetric", 11, 2, 21, 2, -2),
    Sketcher.Constraint("Symmetric", 10, 2, 22, 2, -2),
    Sketcher.Constraint("Symmetric", 9, 2, 23, 2, -2),
    Sketcher.Constraint("Perpendicular", 8, 9),
    Sketcher.Constraint("Perpendicular", 9, 10),
    Sketcher.Constraint("Perpendicular", 10, 11),
    Sketcher.Constraint("Parallel", 11, 12),
    Sketcher.Constraint("Perpendicular", 12, 13),
    Sketcher.Constraint("Perpendicular", 13, 14),
    Sketcher.Constraint("Perpendicular", 14, 15),
    Sketcher.Constraint("Horizontal", 1, 2, 4, 2),
    Sketcher.Constraint("Horizontal", 3, 2, 6, 2),
    Sketcher.Constraint("Horizontal", 5, 2, 24, 2),
    Sketcher.Constraint("Equal", 3, 5),
    Sketcher.Constraint("Equal", 11, 12),
    Sketcher.Constraint("Equal", 10, 13),
    Sketcher.Constraint("DistanceY", 0, 1, 0, 2, 2.0),
    Sketcher.Constraint("Angle", 8, Q("-165 deg")),
    Sketcher.Constraint("Distance", 9, 2.0),
    Sketcher.Constraint("DistanceX", 1, 1, 1, 2, 6.5),
    Sketcher.Constraint("Distance", 8, 6.5),
    Sketcher.Constraint("DistanceX", 4, 2, 0, 2, 46.6),
    Sketcher.Constraint("DistanceX", 0, 2, -1, 1, 33.07),
    Sketcher.Constraint("DistanceX", 21, 2, 18, 2, 51.808299),
    Sketcher.Constraint("DistanceX", 8, 2, -1, 1, 34.06954),
    Sketcher.Constraint("DistanceY", 10, 2, -1, 1, 80.375191),
    Sketcher.Constraint("DistanceY", 12, 2, -1, 1, 94.36801),
])
pocket1 = body.newObject("PartDesign::Pocket", "Pocket")
pocket1.Profile = sketch2
pocket1.Type = "ThroughAll"
pocket1.Reversed = True

# Sketch on XZ plane
sketch3 = body.newObject("Sketcher::SketchObject", "Sketch002")
sketch3.AttachmentSupport = (doc.getObject("XZ_Plane"), [""])
sketch3.MapMode = "FlatFace"
sketch3.AttachmentOffset = App.Placement(App.Vector(0, 0, -6.35), App.Rotation())
sketch3.addGeometry([
    Part.Circle(App.Vector(27.1, 40.1, 0), App.Vector(0, 0, 1), 1.2),  # 0
    Part.Circle(App.Vector(8.3, 40.1, 0), App.Vector(0, 0, 1), 1.2),  # 1
    Part.Circle(App.Vector(-8.3, 40.1, 0), App.Vector(0, 0, 1), 1.2),  # 2
    Part.Circle(App.Vector(-27.1, 40.1, 0), App.Vector(0, 0, 1), 1.2),  # 3
    Part.Circle(App.Vector(27.1, -15.8, 0), App.Vector(0, 0, 1), 1.2),  # 4
    Part.Circle(App.Vector(-8.3, -15.8, 0), App.Vector(0, 0, 1), 1.2),  # 5
    Part.Circle(App.Vector(-27.1, -15.8, 0), App.Vector(0, 0, 1), 1.2),  # 6
    Part.Circle(App.Vector(-24.5, -24.6, 0), App.Vector(0, 0, 1), 1.4),  # 7
    Part.Circle(App.Vector(24.5, -24.6, 0), App.Vector(0, 0, 1), 1.4),  # 8
    Part.Circle(App.Vector(24.5, -82.6, 0), App.Vector(0, 0, 1), 1.4),  # 9
    Part.Circle(App.Vector(-24.5, -82.6, 0), App.Vector(0, 0, 1), 1.4),  # 10
    Part.Circle(App.Vector(8.3, -15.8, 0), App.Vector(0, 0, 1), 1.2),  # 11
], False)
sketch3.addConstraint([
    Sketcher.Constraint("Equal", 0, 1),
    Sketcher.Constraint("Equal", 1, 2),
    Sketcher.Constraint("Equal", 2, 3),
    Sketcher.Constraint("Equal", 3, 4),
    Sketcher.Constraint("Equal", 4, 5),
    Sketcher.Constraint("Equal", 5, 6),
    Sketcher.Constraint("Equal", 7, 8),
    Sketcher.Constraint("Equal", 8, 9),
    Sketcher.Constraint("Equal", 9, 10),
    Sketcher.Constraint("Equal", 6, 11),
    Sketcher.Constraint("Symmetric", 1, 3, 2, 3, -2),
    Sketcher.Constraint("Symmetric", 0, 3, 3, 3, -2),
    Sketcher.Constraint("Symmetric", 4, 3, 6, 3, -2),
    Sketcher.Constraint("Symmetric", 7, 3, 8, 3, -2),
    Sketcher.Constraint("Symmetric", 9, 3, 10, 3, -2),
    Sketcher.Constraint("Symmetric", 5, 3, 11, 3, -2),
    Sketcher.Constraint("Horizontal", 0, 3, 1, 3),
    Sketcher.Constraint("Horizontal", 4, 3, 5, 3),
    Sketcher.Constraint("Vertical", 0, 3, 4, 3),
    Sketcher.Constraint("Vertical", 2, 3, 5, 3),
    Sketcher.Constraint("Vertical", 8, 3, 9, 3),
    Sketcher.Constraint("Diameter", 0, 2.5),
    Sketcher.Constraint("Diameter", 7, 2.7),
    Sketcher.Constraint("DistanceX", 7, 3, 8, 3, 49.0),
    Sketcher.Constraint("DistanceY", 9, 3, 8, 3, 58.0),
    Sketcher.Constraint("DistanceX", -1, 1, 0, 3, 27.1),
    Sketcher.Constraint("DistanceX", -1, 1, 1, 3, 8.3),
    Sketcher.Constraint("DistanceY", 4, 3, 0, 3, 55.9),
    Sketcher.Constraint("DistanceY", 7, 3, 6, 3, 8.8),
    Sketcher.Constraint("DistanceY", -1, 1, 0, 3, 40.058854),
])
pocket2 = body.newObject("PartDesign::Pocket", "Pocket001")
pocket2.Profile = sketch3
pocket2.Length = 10
pocket2.Reversed = True

# Sketch on XZ plane
sketch4 = body.newObject("Sketcher::SketchObject", "Sketch003")
sketch4.AttachmentSupport = (doc.getObject("XZ_Plane"), [""])
sketch4.MapMode = "FlatFace"
sketch4.AttachmentOffset = App.Placement(App.Vector(0, 0, -6.35), App.Rotation())
sketch4.addGeometry([
    Part.Circle(App.Vector(15, 59.4, 0), App.Vector(0, 0, 1), 1.6),
    Part.Circle(App.Vector(-15, 59.4, 0), App.Vector(0, 0, 1), 1.6),
], False)
sketch4.addConstraint([
    Sketcher.Constraint("Equal", 0, 1),
    Sketcher.Constraint("Symmetric", 0, 3, 1, 3, -2),
    Sketcher.Constraint("Diameter", 0, 3.2),
    Sketcher.Constraint("DistanceX", -1, 1, 0, 3, 15.0),
    Sketcher.Constraint("DistanceY", -1, 1, 0, 3, 59.358854),
])
pocket3 = body.newObject("PartDesign::Pocket", "Pocket002")
pocket3.Profile = sketch4
pocket3.Length = 10
pocket3.Reversed = True

# Sketch on XZ plane
sketch5 = body.newObject("Sketcher::SketchObject", "Sketch004")
sketch5.AttachmentSupport = (doc.getObject("XZ_Plane"), [""])
sketch5.MapMode = "FlatFace"
sketch5.AttachmentOffset = App.Placement(App.Vector(0, 0, -6.35), App.Rotation())
sketch5.addGeometry([
    Part.Circle(App.Vector(-35.9, -42.9, 0), App.Vector(0, 0, 1), 1.6),  # 0
    Part.Circle(App.Vector(0, -87.1, 0), App.Vector(0, 0, 1), 1.6),  # 1
    Part.Circle(App.Vector(35.9, -42.9, 0), App.Vector(0, 0, 1), 1.6),  # 2
    Part.Circle(App.Vector(35.9, 42.9, 0), App.Vector(0, 0, 1), 1.6),  # 3
    Part.Circle(App.Vector(-35.9, 42.9, 0), App.Vector(0, 0, 1), 1.6),  # 4
    Part.Circle(App.Vector(0, 87.1, 0), App.Vector(0, 0, 1), 1.6),  # 5
], False)
sketch5.addConstraint([
    Sketcher.Constraint("Equal", 0, 1),
    Sketcher.Constraint("Equal", 1, 2),
    Sketcher.Constraint("Equal", 2, 3),
    Sketcher.Constraint("Equal", 3, 4),
    Sketcher.Constraint("Equal", 4, 5),
    Sketcher.Constraint("Symmetric", 0, 3, 3, 3, -1, 1),
    Sketcher.Constraint("Symmetric", 2, 3, 4, 3, -1, 1),
    Sketcher.Constraint("Symmetric", 1, 3, 5, 3, -1, 1),
    Sketcher.Constraint("Symmetric", 0, 3, 2, 3, -2),
    Sketcher.Constraint("PointOnObject", 1, 3, -2),
    Sketcher.Constraint("Diameter", 0, 3.3),
    Sketcher.Constraint("DistanceX", 0, 3, -1, 1, 35.90503),
    Sketcher.Constraint("DistanceY", 0, 3, -1, 1, 42.90712),
    Sketcher.Constraint("DistanceY", 1, 3, 5, 3, 174.282291),
])
pocket4 = body.newObject("PartDesign::Pocket", "Pocket003")
pocket4.Profile = sketch5
pocket4.Length = 10
pocket4.Reversed = True

# Sketch on XZ plane
sketch6 = body.newObject("Sketcher::SketchObject", "Sketch005")
sketch6.AttachmentSupport = (doc.getObject("XZ_Plane"), [""])
sketch6.MapMode = "FlatFace"
sketch6.AttachmentOffset = App.Placement(App.Vector(0, 0, -6.35), App.Rotation())
sketch6.addGeometry([
    Part.LineSegment(App.Vector(-4, -21, 0), App.Vector(-4, -13, 0)),
    Part.LineSegment(App.Vector(-4, -13, 0), App.Vector(4, -13, 0)),
    Part.LineSegment(App.Vector(4, -13, 0), App.Vector(4, -21, 0)),
    Part.LineSegment(App.Vector(4, -21, 0), App.Vector(-4, -21, 0)),
], False)
sketch6.addConstraint([
    Sketcher.Constraint("Coincident", 0, 2, 1, 1),
    Sketcher.Constraint("Coincident", 1, 2, 2, 1),
    Sketcher.Constraint("Coincident", 2, 2, 3, 1),
    Sketcher.Constraint("Coincident", 3, 2, 0, 1),
    Sketcher.Constraint("Vertical", 0),
    Sketcher.Constraint("Horizontal", 1),
    Sketcher.Constraint("Vertical", 2),
    Sketcher.Constraint("Horizontal", 3),
    Sketcher.Constraint("Equal", 3, 0),
    Sketcher.Constraint("DistanceX", 1, 1, 1, 2, 8.0),
    Sketcher.Constraint("DistanceX", 0, 2, -1, 1, 4.0),
    Sketcher.Constraint("DistanceY", 0, 2, -1, 1, 13.0),
])
pocket5 = body.newObject("PartDesign::Pocket", "Pocket004")
pocket5.Profile = sketch6
pocket5.Length = 10
pocket5.Reversed = True
doc.recompute()

fillet3 = body.newObject("PartDesign::Fillet", "Fillet002")
fillet3.Base = (pocket5, edges_at(pocket5, [
    (4, 3.175, -21),
    (4, 3.175, -13),
    (-4, 3.175, -13),
    (-4, 3.175, -21),
]))
fillet3.Radius = 2

doc.recompute()
